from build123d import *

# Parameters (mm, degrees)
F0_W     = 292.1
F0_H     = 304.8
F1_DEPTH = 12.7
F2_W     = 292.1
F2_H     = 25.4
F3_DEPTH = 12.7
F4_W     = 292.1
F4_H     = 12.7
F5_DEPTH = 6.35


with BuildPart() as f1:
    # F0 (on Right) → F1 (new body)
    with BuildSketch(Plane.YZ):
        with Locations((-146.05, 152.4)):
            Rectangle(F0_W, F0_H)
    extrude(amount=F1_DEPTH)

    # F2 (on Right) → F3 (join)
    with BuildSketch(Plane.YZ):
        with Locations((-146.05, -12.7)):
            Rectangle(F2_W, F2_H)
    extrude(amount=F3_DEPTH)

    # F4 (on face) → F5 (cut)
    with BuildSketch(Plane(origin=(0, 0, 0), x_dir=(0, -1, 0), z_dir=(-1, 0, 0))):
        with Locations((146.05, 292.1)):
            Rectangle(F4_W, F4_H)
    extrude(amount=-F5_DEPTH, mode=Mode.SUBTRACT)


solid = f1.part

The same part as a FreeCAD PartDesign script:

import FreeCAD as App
import Part
import Sketcher
Q = App.Units.Quantity

doc = App.newDocument("Part")
body = doc.addObject("PartDesign::Body", "Body")

# Sketch on YZ plane
sketch1 = body.newObject("Sketcher::SketchObject", "Sketch")
sketch1.AttachmentSupport = (doc.getObject("YZ_Plane"), [""])
sketch1.MapMode = "FlatFace"
sketch1.addGeometry([
    Part.LineSegment(App.Vector(-292, 305, 0), App.Vector(-292, 0, 0)),
    Part.LineSegment(App.Vector(-292, 0, 0), App.Vector(0, 0, 0)),
    Part.LineSegment(App.Vector(0, 0, 0), App.Vector(0, 305, 0)),
    Part.LineSegment(App.Vector(0, 305, 0), App.Vector(-292, 305, 0)),
], False)
sketch1.addConstraint([
    Sketcher.Constraint("Coincident", 0, 2, 1, 1),
    Sketcher.Constraint("Coincident", 1, 2, 2, 1),
    Sketcher.Constraint("Coincident", 2, 2, 3, 1),
    Sketcher.Constraint("Coincident", 3, 2, 0, 1),
    Sketcher.Constraint("Vertical", 0),
    Sketcher.Constraint("Horizontal", 1),
    Sketcher.Constraint("Vertical", 2),
    Sketcher.Constraint("Horizontal", 3),
    Sketcher.Constraint("Coincident", 1, 2, -1, 1),
    Sketcher.Constraint("DistanceY", 0, 2, 0, 1, Q("12 in")),
    Sketcher.Constraint("DistanceX", 1, 1, 1, 2, Q("11.5 in")),
])
pad1 = body.newObject("PartDesign::Pad", "Pad")
pad1.Profile = sketch1
pad1.Length = Q("0.5 in")

# Sketch on YZ plane
sketch2 = body.newObject("Sketcher::SketchObject", "Sketch001")
sketch2.AttachmentSupport = (doc.getObject("YZ_Plane"), [""])
sketch2.MapMode = "FlatFace"
sketch2.addGeometry([
    Part.LineSegment(App.Vector(-292, 0, 0), App.Vector(-292, -25, 0)),
    Part.LineSegment(App.Vector(-292, -25, 0), App.Vector(0, -25, 0)),
    Part.LineSegment(App.Vector(0, -25, 0), App.Vector(0, 0, 0)),
    Part.LineSegment(App.Vector(0, 0, 0), App.Vector(-292, 0, 0)),
], False)
sketch2.addConstraint([
    Sketcher.Constraint("Coincident", 0, 2, 1, 1),
    Sketcher.Constraint("Coincident", 1, 2, 2, 1),
    Sketcher.Constraint("Coincident", 2, 2, 3, 1),
    Sketcher.Constraint("Coincident", 3, 2, 0, 1),
    Sketcher.Constraint("Vertical", 0),
    Sketcher.Constraint("Horizontal", 1),
    Sketcher.Constraint("Vertical", 2),
    Sketcher.Constraint("Horizontal", 3),
    Sketcher.Constraint("Coincident", 2, 2, -1, 1),
    Sketcher.Constraint("DistanceY", 0, 2, 0, 1, Q("1 in")),
    Sketcher.Constraint("DistanceX", 1, 1, 1, 2, Q("11.5 in")),
])
pad2 = body.newObject("PartDesign::Pad", "Pad001")
pad2.Profile = sketch2
pad2.Length = Q("0.5 in")

# Sketch on YZ plane
sketch3 = body.newObject("Sketcher::SketchObject", "Sketch002")
sketch3.AttachmentSupport = (doc.getObject("YZ_Plane"), [""])
sketch3.MapMode = "FlatFace"
sketch3.addGeometry([
    Part.LineSegment(App.Vector(0, 298, 0), App.Vector(0, 286, 0)),
    Part.LineSegment(App.Vector(0, 286, 0), App.Vector(-292, 286, 0)),
    Part.LineSegment(App.Vector(-292, 286, 0), App.Vector(-292, 298, 0)),
    Part.LineSegment(App.Vector(-292, 298, 0), App.Vector(0, 298, 0)),
], False)
sketch3.addConstraint([
    Sketcher.Constraint("Coincident", 0, 2, 1, 1),
    Sketcher.Constraint("Coincident", 1, 2, 2, 1),
    Sketcher.Constraint("Coincident", 2, 2, 3, 1),
    Sketcher.Constraint("Coincident", 3, 2, 0, 1),
    Sketcher.Constraint("Vertical", 0),
    Sketcher.Constraint("Horizontal", 1),
    Sketcher.Constraint("Vertical", 2),
    Sketcher.Constraint("Horizontal", 3),
    Sketcher.Constraint("PointOnObject", 0, 2, -2),
    Sketcher.Constraint("DistanceX", 1, 2, 1, 1, Q("11.5 in")),
    Sketcher.Constraint("DistanceY", 0, 2, 0, 1, Q("0.5 in")),
    Sketcher.Constraint("DistanceY", -1, 1, 0, 2, Q("11.25 in")),
])
pocket1 = body.newObject("PartDesign::Pocket", "Pocket")
pocket1.Profile = sketch3
pocket1.Length = Q("0.25 in")
pocket1.Reversed = True

doc.recompute()
